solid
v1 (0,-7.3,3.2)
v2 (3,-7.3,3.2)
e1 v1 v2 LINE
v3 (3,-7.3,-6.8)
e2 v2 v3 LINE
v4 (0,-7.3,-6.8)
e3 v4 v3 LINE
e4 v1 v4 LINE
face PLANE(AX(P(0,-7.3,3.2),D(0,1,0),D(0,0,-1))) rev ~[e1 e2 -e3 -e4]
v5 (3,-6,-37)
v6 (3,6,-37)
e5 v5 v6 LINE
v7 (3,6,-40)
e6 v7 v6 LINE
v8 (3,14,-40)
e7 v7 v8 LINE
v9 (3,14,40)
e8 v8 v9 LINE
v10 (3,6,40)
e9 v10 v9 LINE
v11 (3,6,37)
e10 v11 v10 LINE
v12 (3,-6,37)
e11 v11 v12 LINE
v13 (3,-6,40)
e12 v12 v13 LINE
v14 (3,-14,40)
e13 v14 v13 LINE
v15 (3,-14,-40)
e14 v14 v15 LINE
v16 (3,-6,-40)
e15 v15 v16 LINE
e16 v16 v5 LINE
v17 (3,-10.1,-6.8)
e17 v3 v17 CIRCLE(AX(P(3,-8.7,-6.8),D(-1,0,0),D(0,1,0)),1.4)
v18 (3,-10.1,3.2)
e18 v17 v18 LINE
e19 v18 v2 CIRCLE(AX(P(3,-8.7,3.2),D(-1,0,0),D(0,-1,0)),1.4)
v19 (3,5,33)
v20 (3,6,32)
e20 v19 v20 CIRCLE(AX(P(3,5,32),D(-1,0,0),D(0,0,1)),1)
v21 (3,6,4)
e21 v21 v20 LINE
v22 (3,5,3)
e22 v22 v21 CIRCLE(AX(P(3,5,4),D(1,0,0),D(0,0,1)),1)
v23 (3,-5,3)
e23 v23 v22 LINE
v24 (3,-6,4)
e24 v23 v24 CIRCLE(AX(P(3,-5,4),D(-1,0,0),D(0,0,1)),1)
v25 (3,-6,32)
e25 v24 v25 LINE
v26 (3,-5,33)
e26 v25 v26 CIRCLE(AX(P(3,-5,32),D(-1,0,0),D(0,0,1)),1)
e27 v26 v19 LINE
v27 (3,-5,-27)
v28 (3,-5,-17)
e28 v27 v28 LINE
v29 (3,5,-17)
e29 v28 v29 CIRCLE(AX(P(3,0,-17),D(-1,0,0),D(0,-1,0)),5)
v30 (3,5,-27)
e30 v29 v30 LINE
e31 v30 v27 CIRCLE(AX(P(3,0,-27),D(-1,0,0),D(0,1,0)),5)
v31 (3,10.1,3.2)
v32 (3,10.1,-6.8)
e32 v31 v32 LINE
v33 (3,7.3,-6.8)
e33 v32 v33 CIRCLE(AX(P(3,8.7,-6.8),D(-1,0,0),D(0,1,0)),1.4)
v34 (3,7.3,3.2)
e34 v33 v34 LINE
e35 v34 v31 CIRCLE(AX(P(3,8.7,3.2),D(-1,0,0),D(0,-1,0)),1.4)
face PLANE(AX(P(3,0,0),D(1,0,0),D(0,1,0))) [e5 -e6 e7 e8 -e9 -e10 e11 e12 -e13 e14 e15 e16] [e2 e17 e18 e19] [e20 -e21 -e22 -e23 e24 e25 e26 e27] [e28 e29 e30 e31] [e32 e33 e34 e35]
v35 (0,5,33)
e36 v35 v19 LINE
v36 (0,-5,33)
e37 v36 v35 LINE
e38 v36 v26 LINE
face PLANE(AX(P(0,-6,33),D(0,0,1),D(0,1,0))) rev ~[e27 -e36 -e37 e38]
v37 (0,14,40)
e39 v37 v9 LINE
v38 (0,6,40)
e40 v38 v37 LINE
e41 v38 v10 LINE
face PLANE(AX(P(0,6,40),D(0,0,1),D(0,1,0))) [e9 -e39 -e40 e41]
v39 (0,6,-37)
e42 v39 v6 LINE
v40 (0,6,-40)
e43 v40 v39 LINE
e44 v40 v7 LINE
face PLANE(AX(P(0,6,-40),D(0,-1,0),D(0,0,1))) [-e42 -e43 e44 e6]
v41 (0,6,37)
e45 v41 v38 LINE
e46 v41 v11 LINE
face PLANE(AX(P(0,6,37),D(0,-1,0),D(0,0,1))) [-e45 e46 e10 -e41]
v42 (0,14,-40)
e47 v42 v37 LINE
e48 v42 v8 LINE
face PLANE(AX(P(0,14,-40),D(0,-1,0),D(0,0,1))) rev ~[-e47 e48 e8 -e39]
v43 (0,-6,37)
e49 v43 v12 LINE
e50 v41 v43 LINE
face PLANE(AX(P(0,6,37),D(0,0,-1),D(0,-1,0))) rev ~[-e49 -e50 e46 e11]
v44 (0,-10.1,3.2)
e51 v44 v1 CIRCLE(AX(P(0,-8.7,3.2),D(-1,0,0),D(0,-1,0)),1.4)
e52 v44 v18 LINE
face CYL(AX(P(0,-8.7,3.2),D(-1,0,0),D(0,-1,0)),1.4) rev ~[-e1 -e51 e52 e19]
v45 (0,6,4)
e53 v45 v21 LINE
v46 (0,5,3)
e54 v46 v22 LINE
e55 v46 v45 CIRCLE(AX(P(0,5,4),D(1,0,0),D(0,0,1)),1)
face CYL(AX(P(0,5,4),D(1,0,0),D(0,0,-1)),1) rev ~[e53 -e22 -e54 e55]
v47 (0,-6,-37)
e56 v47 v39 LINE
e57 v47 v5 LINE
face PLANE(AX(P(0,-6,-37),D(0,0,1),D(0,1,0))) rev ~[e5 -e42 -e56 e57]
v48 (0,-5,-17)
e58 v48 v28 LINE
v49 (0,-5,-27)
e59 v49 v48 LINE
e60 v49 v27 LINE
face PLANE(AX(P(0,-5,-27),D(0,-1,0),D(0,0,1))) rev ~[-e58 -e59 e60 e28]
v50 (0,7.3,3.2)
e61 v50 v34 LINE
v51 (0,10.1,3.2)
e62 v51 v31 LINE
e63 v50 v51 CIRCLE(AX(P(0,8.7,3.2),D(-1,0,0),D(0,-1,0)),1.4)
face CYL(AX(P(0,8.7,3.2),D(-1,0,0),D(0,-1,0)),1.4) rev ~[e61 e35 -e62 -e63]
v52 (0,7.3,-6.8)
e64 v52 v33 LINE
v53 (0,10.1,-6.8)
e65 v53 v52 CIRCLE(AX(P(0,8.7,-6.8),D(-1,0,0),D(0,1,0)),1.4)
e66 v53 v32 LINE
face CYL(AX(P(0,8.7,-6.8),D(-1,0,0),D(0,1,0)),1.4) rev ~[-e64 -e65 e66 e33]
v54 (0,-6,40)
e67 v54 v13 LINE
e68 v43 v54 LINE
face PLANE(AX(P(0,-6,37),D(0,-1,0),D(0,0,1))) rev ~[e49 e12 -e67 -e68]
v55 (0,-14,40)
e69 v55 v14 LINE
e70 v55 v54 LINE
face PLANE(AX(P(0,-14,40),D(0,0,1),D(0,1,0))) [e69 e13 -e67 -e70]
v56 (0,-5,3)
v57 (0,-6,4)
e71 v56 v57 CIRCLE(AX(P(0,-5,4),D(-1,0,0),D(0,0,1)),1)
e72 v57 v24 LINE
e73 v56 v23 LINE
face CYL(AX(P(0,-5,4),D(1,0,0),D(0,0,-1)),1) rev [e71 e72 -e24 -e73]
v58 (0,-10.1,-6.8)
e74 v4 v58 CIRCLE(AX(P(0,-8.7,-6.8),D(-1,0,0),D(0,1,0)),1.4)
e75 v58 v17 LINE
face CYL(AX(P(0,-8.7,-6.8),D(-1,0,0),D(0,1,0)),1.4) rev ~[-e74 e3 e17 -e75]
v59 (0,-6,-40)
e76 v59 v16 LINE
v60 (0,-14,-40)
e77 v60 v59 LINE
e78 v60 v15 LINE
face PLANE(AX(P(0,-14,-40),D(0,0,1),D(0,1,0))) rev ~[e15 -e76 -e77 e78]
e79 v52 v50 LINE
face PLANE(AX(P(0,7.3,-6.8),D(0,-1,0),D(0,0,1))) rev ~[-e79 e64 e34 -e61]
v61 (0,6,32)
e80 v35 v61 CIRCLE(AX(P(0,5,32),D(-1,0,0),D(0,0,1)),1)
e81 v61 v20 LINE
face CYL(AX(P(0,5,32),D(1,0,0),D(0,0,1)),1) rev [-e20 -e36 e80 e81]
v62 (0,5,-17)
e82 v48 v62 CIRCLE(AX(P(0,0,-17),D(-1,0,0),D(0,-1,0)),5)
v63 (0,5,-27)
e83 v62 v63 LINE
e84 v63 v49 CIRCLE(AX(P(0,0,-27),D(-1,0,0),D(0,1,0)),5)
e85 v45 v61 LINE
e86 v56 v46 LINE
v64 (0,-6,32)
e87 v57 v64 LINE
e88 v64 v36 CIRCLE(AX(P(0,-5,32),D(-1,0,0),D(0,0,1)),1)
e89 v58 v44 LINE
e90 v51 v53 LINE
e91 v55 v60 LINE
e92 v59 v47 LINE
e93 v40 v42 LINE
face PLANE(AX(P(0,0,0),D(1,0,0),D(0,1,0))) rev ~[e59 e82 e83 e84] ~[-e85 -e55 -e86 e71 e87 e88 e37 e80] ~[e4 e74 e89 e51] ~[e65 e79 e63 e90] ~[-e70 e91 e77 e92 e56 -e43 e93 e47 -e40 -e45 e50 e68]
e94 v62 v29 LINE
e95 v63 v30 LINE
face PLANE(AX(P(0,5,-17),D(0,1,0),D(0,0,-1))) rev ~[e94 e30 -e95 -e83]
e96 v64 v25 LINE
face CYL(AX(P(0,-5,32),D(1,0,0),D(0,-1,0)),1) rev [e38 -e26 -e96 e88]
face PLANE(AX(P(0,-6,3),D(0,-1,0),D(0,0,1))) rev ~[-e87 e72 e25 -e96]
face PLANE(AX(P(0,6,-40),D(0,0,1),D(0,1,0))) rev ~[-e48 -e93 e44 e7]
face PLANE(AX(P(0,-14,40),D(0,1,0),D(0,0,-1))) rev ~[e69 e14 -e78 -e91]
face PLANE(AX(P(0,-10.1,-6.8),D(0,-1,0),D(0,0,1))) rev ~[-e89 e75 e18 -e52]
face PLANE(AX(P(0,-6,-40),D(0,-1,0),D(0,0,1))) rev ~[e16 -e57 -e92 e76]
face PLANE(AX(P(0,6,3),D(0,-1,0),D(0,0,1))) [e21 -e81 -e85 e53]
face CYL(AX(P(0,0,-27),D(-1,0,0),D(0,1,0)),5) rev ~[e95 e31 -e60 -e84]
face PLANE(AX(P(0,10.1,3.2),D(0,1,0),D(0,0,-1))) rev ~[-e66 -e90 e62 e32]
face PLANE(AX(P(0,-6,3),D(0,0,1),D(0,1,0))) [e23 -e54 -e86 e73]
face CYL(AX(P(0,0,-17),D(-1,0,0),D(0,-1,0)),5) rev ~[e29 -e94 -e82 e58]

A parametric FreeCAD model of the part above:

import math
import FreeCAD as App
import Part
import Sketcher

V = App.Vector


def edges_at(feature, points):
    """Names of the edges that pass closest to the given points."""
    edges = feature.Shape.Edges
    near = lambda p: min(range(len(edges)), key=lambda i: edges[i].distToShape(Part.Vertex(*p))[0])
    return sorted({f"Edge{near(p) + 1}" for p in points})

doc = App.newDocument("Part")
body = doc.addObject("PartDesign::Body", "Body")

sketch1 = body.newObject("Sketcher::SketchObject", "Sketch")
sketch1.AttachmentSupport = (doc.getObject("YZ_Plane"), [""])
sketch1.MapMode = "FlatFace"
sketch1.addGeometry([
    Part.LineSegment(V(14, 40, 0), V(6, 40, 0)),
    Part.LineSegment(V(6, 40, 0), V(6, 37, 0)),
    Part.LineSegment(V(6, 37, 0), V(-6, 37, 0)),
    Part.LineSegment(V(-6, 37, 0), V(-6, 40, 0)),
    Part.LineSegment(V(-6, 40, 0), V(-14, 40, 0)),
    Part.LineSegment(V(-14, 40, 0), V(-14, -40, 0)),
    Part.LineSegment(V(-14, -40, 0), V(-6, -40, 0)),
    Part.LineSegment(V(-6, -40, 0), V(-6, -37, 0)),
    Part.LineSegment(V(-6, -37, 0), V(6, -37, 0)),
    Part.LineSegment(V(6, -37, 0), V(6, -40, 0)),
    Part.LineSegment(V(6, -40, 0), V(14, -40, 0)),
    Part.LineSegment(V(14, -40, 0), V(14, 40, 0)),
    Part.ArcOfCircle(Part.Circle(V(-8.7, -6.8, 0), V(0, 0, 1), 1.4), math.radians(180), math.radians(360)),
    Part.LineSegment(V(-10.1, -6.8, 0), V(-10.1, 3.2, 0)),
    Part.ArcOfCircle(Part.Circle(V(-8.7, 3.2, 0), V(0, 0, 1), 1.4), math.radians(0), math.radians(180)),
    Part.LineSegment(V(-7.3, 3.2, 0), V(-7.3, -6.8, 0)),
    Part.LineSegment(V(-5, -27, 0), V(-5, -17, 0)),
    Part.ArcOfCircle(Part.Circle(V(0, -17, 0), V(0, 0, 1), 5), math.radians(0), math.radians(180)),
    Part.LineSegment(V(5, -17, 0), V(5, -27, 0)),
    Part.ArcOfCircle(Part.Circle(V(0, -27, 0), V(0, 0, 1), 5), math.radians(180), math.radians(360)),
    Part.LineSegment(V(7.3, -6.8, 0), V(7.3, 3.2, 0)),
    Part.ArcOfCircle(Part.Circle(V(8.7, 3.2, 0), V(0, 0, 1), 1.4), math.radians(0), math.radians(180)),
    Part.LineSegment(V(10.1, 3.2, 0), V(10.1, -6.8, 0)),
    Part.ArcOfCircle(Part.Circle(V(8.7, -6.8, 0), V(0, 0, 1), 1.4), math.radians(180), math.radians(360)),
    Part.LineSegment(V(6, 3, 0), V(-6, 3, 0)),
    Part.LineSegment(V(-6, 3, 0), V(-6, 33, 0)),
    Part.LineSegment(V(-6, 33, 0), V(6, 33, 0)),
    Part.LineSegment(V(6, 33, 0), V(6, 3, 0)),
], False)
sketch1.addConstraint([
    Sketcher.Constraint("Coincident", 0, 2, 1, 1),
    Sketcher.Constraint("Coincident", 1, 2, 2, 1),
    Sketcher.Constraint("Coincident", 2, 2, 3, 1),
    Sketcher.Constraint("Coincident", 3, 2, 4, 1),
    Sketcher.Constraint("Coincident", 4, 2, 5, 1),
    Sketcher.Constraint("Coincident", 5, 2, 6, 1),
    Sketcher.Constraint("Coincident", 6, 2, 7, 1),
    Sketcher.Constraint("Coincident", 7, 2, 8, 1),
    Sketcher.Constraint("Coincident", 8, 2, 9, 1),
    Sketcher.Constraint("Coincident", 9, 2, 10, 1),
    Sketcher.Constraint("Coincident", 10, 2, 11, 1),
    Sketcher.Constraint("Coincident", 11, 2, 0, 1),
    Sketcher.Constraint("Tangent", 12, 1, 13, 1),
    Sketcher.Constraint("Tangent", 13, 2, 14, 2),
    Sketcher.Constraint("Tangent", 14, 1, 15, 1),
    Sketcher.Constraint("Tangent", 15, 2, 12, 2),
    Sketcher.Constraint("Tangent", 16, 2, 17, 2),
    Sketcher.Constraint("Tangent", 17, 1, 18, 1),
    Sketcher.Constraint("Tangent", 18, 2, 19, 2),
    Sketcher.Constraint("Tangent", 19, 1, 16, 1),
    Sketcher.Constraint("Tangent", 20, 2, 21, 2),
    Sketcher.Constraint("Tangent", 21, 1, 22, 1),
    Sketcher.Constraint("Tangent", 22, 2, 23, 2),
    Sketcher.Constraint("Tangent", 23, 1, 20, 1),
    Sketcher.Constraint("Coincident", 24, 2, 25, 1),
    Sketcher.Constraint("Coincident", 25, 2, 26, 1),
    Sketcher.Constraint("Coincident", 26, 2, 27, 1),
    Sketcher.Constraint("Coincident", 27, 2, 24, 1),
    Sketcher.Constraint("Horizontal", 0),
    Sketcher.Constraint("Vertical", 1),
    Sketcher.Constraint("Horizontal", 2),
    Sketcher.Constraint("Vertical", 3),
    Sketcher.Constraint("Horizontal", 4),
    Sketcher.Constraint("Vertical", 5),
    Sketcher.Constraint("Horizontal", 6),
    Sketcher.Constraint("Vertical", 7),
    Sketcher.Constraint("Horizontal", 8),
    Sketcher.Constraint("Vertical", 9),
    Sketcher.Constraint("Horizontal", 10),
    Sketcher.Constraint("Vertical", 11),
    Sketcher.Constraint("Vertical", 13),
    Sketcher.Constraint("Vertical", 15),
    Sketcher.Constraint("Vertical", 16),
    Sketcher.Constraint("Vertical", 18),
    Sketcher.Constraint("Vertical", 20),
    Sketcher.Constraint("Vertical", 22),
    Sketcher.Constraint("Horizontal", 24),
    Sketcher.Constraint("Vertical", 25),
    Sketcher.Constraint("Horizontal", 26),
    Sketcher.Constraint("Vertical", 27),
    Sketcher.Constraint("Equal", 14, 21),
    Sketcher.Constraint("Symmetric", 0, 2, 6, 2, -1, 1),
    Sketcher.Constraint("Symmetric", 2, 2, 8, 2, -1, 1),
    Sketcher.Constraint("Symmetric", 4, 2, 10, 2, -1, 1),
    Sketcher.Constraint("Symmetric", 14, 3, 21, 3, -2),
    Sketcher.Constraint("Symmetric", 0, 2, 3, 2, -2),
    Sketcher.Constraint("PointOnObject", 17, 3, -2),
    Sketcher.Constraint("Horizontal", 12, 3, 23, 3),
    Sketcher.Constraint("Vertical", 7, 2, 24, 2),
    Sketcher.Constraint("Vertical", 9, 2, 26, 2),
    Sketcher.Constraint("Equal", 15, 16),
    Sketcher.Constraint("Radius", 17, 5.0),
    Sketcher.Constraint("Radius", 12, 1.4),
    Sketcher.Constraint("DistanceX", 0, 2, 0, 1, 8.0),
    Sketcher.Constraint("DistanceX", 2, 2, 2, 1, 12.0),
    Sketcher.Constraint("DistanceY", 1, 2, 1, 1, 3.0),
    Sketcher.Constraint("DistanceY", 5, 2, 5, 1, 80.0),
    Sketcher.Constraint("DistanceY", 13, 1, 13, 2, 10.0),
    Sketcher.Constraint("DistanceY", 25, 1, 25, 2, 30.0),
    Sketcher.Constraint("DistanceY", 17, 3, -1, 1, 17.0),
    Sketcher.Constraint("DistanceY", -1, 1, 24, 2, 3.0),
    Sketcher.Constraint("DistanceX", 14, 1, 21, 3, 16.0),
    Sketcher.Constraint("DistanceY", 12, 3, -1, 1, 6.8),
])
pad1 = body.newObject("PartDesign::Pad", "Pad")
pad1.Profile = sketch1
pad1.Length = 3
doc.recompute()

fillet = body.newObject("PartDesign::Fillet", "Fillet")
fillet.Base = (pad1, edges_at(pad1, [
    (1.5, 6, 33),
    (1.5, -6, 33),
    (1.5, -6, 3),
    (1.5, 6, 3),
]))
fillet.Radius = 1

doc.recompute()
